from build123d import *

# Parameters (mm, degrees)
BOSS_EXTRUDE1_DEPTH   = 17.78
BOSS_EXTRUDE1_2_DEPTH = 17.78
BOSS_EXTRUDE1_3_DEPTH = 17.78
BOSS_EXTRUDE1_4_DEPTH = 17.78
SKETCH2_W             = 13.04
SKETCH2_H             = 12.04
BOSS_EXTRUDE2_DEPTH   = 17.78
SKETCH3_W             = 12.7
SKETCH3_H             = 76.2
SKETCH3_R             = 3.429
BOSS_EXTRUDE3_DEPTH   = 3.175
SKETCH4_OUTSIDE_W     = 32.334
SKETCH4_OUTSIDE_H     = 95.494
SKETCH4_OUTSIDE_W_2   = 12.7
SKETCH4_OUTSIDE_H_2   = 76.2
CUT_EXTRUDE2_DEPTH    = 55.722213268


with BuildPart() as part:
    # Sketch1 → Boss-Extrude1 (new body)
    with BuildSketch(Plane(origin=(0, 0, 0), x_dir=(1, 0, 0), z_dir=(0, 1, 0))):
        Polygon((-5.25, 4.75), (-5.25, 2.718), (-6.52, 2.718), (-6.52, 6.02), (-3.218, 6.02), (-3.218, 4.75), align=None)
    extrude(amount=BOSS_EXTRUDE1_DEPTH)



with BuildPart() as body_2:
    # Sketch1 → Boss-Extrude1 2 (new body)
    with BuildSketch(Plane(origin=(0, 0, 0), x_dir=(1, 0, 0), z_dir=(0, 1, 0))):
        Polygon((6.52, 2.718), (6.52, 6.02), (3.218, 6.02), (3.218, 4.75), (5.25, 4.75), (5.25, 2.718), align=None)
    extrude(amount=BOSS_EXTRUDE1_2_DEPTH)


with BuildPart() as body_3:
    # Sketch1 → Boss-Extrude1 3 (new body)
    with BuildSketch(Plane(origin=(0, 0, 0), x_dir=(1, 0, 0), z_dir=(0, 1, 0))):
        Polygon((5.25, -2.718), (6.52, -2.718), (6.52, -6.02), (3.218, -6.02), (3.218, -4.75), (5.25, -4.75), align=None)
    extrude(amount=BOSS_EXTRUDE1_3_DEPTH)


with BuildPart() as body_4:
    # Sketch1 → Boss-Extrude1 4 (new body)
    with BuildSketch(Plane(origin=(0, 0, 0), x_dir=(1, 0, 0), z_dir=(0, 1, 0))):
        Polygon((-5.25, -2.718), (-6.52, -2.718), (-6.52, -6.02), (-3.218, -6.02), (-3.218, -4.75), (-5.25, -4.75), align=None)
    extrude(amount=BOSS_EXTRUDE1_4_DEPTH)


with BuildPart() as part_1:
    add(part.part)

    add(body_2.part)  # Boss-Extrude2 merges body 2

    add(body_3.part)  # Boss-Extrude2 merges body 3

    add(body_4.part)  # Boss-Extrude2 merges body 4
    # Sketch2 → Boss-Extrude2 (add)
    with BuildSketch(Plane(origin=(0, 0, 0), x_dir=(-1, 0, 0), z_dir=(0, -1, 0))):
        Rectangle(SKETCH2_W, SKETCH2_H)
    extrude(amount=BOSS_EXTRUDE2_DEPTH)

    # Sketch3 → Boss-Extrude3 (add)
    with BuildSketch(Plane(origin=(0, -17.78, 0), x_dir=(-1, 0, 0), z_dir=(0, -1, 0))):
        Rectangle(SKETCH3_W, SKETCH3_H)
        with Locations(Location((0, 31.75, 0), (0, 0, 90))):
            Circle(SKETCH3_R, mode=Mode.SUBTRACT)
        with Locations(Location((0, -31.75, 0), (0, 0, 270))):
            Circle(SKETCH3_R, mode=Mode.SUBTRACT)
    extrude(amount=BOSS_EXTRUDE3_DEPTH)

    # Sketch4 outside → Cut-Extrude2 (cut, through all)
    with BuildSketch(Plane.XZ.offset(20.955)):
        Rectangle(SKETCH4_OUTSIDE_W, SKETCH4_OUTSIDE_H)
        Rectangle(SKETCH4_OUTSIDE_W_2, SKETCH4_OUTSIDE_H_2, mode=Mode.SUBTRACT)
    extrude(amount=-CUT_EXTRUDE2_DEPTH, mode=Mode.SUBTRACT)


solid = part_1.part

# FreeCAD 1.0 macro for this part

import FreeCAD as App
import Part
import Sketcher
Q = App.Units.Quantity

doc = App.newDocument("Part")
body = doc.addObject("PartDesign::Body", "Body")

# Sketch on XZ plane
sketch1 = doc.addObject("Sketcher::SketchObject", "Sketch")
body.addObject(sketch1)
sketch1.AttachmentSupport = (doc.XZ_Plane, [""])
sketch1.MapMode = "FlatFace"
sketch1.addGeometry(Part.LineSegment(App.Vector(-5.2, -2.7, 0), App.Vector(-5.2, -4.8, 0)), False)
sketch1.addGeometry(Part.LineSegment(App.Vector(-5.2, -4.8, 0), App.Vector(-3.2, -4.8, 0)), False)
sketch1.addGeometry(Part.LineSegment(App.Vector(-3.2, -4.8, 0), App.Vector(-3.2, -6, 0)), False)
sketch1.addGeometry(Part.LineSegment(App.Vector(-3.2, -6, 0), App.Vector(-6.5, -6, 0)), False)
sketch1.addGeometry(Part.LineSegment(App.Vector(-6.5, -6, 0), App.Vector(-6.5, -2.7, 0)), False)
sketch1.addGeometry(Part.LineSegment(App.Vector(-6.5, -2.7, 0), App.Vector(-5.2, -2.7, 0)), False)
sketch1.addConstraint(Sketcher.Constraint("Coincident", 0, 2, 1, 1))
sketch1.addConstraint(Sketcher.Constraint("Coincident", 1, 2, 2, 1))
sketch1.addConstraint(Sketcher.Constraint("Coincident", 2, 2, 3, 1))
sketch1.addConstraint(Sketcher.Constraint("Coincident", 3, 2, 4, 1))
sketch1.addConstraint(Sketcher.Constraint("Coincident", 4, 2, 5, 1))
sketch1.addConstraint(Sketcher.Constraint("Coincident", 5, 2, 0, 1))
sketch1.addConstraint(Sketcher.Constraint("Vertical", 0))
sketch1.addConstraint(Sketcher.Constraint("Horizontal", 1))
sketch1.addConstraint(Sketcher.Constraint("Vertical", 2))
sketch1.addConstraint(Sketcher.Constraint("Horizontal", 3))
sketch1.addConstraint(Sketcher.Constraint("Vertical", 4))
sketch1.addConstraint(Sketcher.Constraint("Horizontal", 5))
sketch1.addConstraint(Sketcher.Constraint("Equal", 1, 0))
sketch1.addConstraint(Sketcher.Constraint("Equal", 5, 2))
sketch1.addConstraint(Sketcher.Constraint("DistanceX", 1, 1, 1, 2, Q("0.08 in")))
sketch1.addConstraint(Sketcher.Constraint("DistanceX", 3, 2, 3, 1, Q("0.13 in")))
sketch1.addConstraint(Sketcher.Constraint("DistanceX", 0, 2, -1, 1, Q("5.25 mm")))
sketch1.addConstraint(Sketcher.Constraint("DistanceY", 0, 2, -1, 1, Q("4.75 mm")))
pad1 = doc.addObject("PartDesign::Pad", "Pad")
body.addObject(pad1)
pad1.Profile = sketch1
pad1.Length = Q("0.7 in")
pad1.Reversed = True
body2 = doc.addObject("PartDesign::Body", "Body001")

# Sketch on XZ plane
sketch2 = doc.addObject("Sketcher::SketchObject", "Sketch001")
body2.addObject(sketch2)
sketch2.AttachmentSupport = (doc.getObject("XZ_Plane001"), [""])
sketch2.MapMode = "FlatFace"
sketch2.addGeometry(Part.LineSegment(App.Vector(6.5, -2.7, 0), App.Vector(6.5, -6, 0)), False)
sketch2.addGeometry(Part.LineSegment(App.Vector(6.5, -6, 0), App.Vector(3.2, -6, 0)), False)
sketch2.addGeometry(Part.LineSegment(App.Vector(3.2, -6, 0), App.Vector(3.2, -4.8, 0)), False)
sketch2.addGeometry(Part.LineSegment(App.Vector(3.2, -4.8, 0), App.Vector(5.2, -4.8, 0)), False)
sketch2.addGeometry(Part.LineSegment(App.Vector(5.2, -4.8, 0), App.Vector(5.2, -2.7, 0)), False)
sketch2.addGeometry(Part.LineSegment(App.Vector(5.2, -2.7, 0), App.Vector(6.5, -2.7, 0)), False)
sketch2.addConstraint(Sketcher.Constraint("Coincident", 0, 2, 1, 1))
sketch2.addConstraint(Sketcher.Constraint("Coincident", 1, 2, 2, 1))
sketch2.addConstraint(Sketcher.Constraint("Coincident", 2, 2, 3, 1))
sketch2.addConstraint(Sketcher.Constraint("Coincident", 3, 2, 4, 1))
sketch2.addConstraint(Sketcher.Constraint("Coincident", 4, 2, 5, 1))
sketch2.addConstraint(Sketcher.Constraint("Coincident", 5, 2, 0, 1))
sketch2.addConstraint(Sketcher.Constraint("Vertical", 0))
sketch2.addConstraint(Sketcher.Constraint("Horizontal", 1))
sketch2.addConstraint(Sketcher.Constraint("Vertical", 2))
sketch2.addConstraint(Sketcher.Constraint("Horizontal", 3))
sketch2.addConstraint(Sketcher.Constraint("Vertical", 4))
sketch2.addConstraint(Sketcher.Constraint("Horizontal", 5))
sketch2.addConstraint(Sketcher.Constraint("Equal", 1, 0))
sketch2.addConstraint(Sketcher.Constraint("Equal", 5, 2))
sketch2.addConstraint(Sketcher.Constraint("DistanceX", 1, 2, 1, 1, Q("0.13 in")))
sketch2.addConstraint(Sketcher.Constraint("DistanceX", 3, 1, 3, 2, Q("0.08 in")))
sketch2.addConstraint(Sketcher.Constraint("DistanceX", -1, 1, 0, 2, Q("6.52 mm")))
sketch2.addConstraint(Sketcher.Constraint("DistanceY", 0, 2, -1, 1, Q("6.02 mm")))
pad2 = doc.addObject("PartDesign::Pad", "Pad001")
body2.addObject(pad2)
pad2.Profile = sketch2
pad2.Length = Q("0.7 in")
pad2.Reversed = True
body3 = doc.addObject("PartDesign::Body", "Body002")

# Sketch on XZ plane
sketch3 = doc.addObject("Sketcher::SketchObject", "Sketch002")
body3.addObject(sketch3)
sketch3.AttachmentSupport = (doc.getObject("XZ_Plane002"), [""])
sketch3.MapMode = "FlatFace"
sketch3.addGeometry(Part.LineSegment(App.Vector(6.5, 2.7, 0), App.Vector(5.2, 2.7, 0)), False)
sketch3.addGeometry(Part.LineSegment(App.Vector(5.2, 2.7, 0), App.Vector(5.2, 4.8, 0)), False)
sketch3.addGeometry(Part.LineSegment(App.Vector(5.2, 4.8, 0), App.Vector(3.2, 4.8, 0)), False)
sketch3.addGeometry(Part.LineSegment(App.Vector(3.2, 4.8, 0), App.Vector(3.2, 6, 0)), False)
sketch3.addGeometry(Part.LineSegment(App.Vector(3.2, 6, 0), App.Vector(6.5, 6, 0)), False)
sketch3.addGeometry(Part.LineSegment(App.Vector(6.5, 6, 0), App.Vector(6.5, 2.7, 0)), False)
sketch3.addConstraint(Sketcher.Constraint("Coincident", 0, 2, 1, 1))
sketch3.addConstraint(Sketcher.Constraint("Coincident", 1, 2, 2, 1))
sketch3.addConstraint(Sketcher.Constraint("Coincident", 2, 2, 3, 1))
sketch3.addConstraint(Sketcher.Constraint("Coincident", 3, 2, 4, 1))
sketch3.addConstraint(Sketcher.Constraint("Coincident", 4, 2, 5, 1))
sketch3.addConstraint(Sketcher.Constraint("Coincident", 5, 2, 0, 1))
sketch3.addConstraint(Sketcher.Constraint("Horizontal", 0))
sketch3.addConstraint(Sketcher.Constraint("Vertical", 1))
sketch3.addConstraint(Sketcher.Constraint("Horizontal", 2))
sketch3.addConstraint(Sketcher.Constraint("Vertical", 3))
sketch3.addConstraint(Sketcher.Constraint("Horizontal", 4))
sketch3.addConstraint(Sketcher.Constraint("Vertical", 5))
sketch3.addConstraint(Sketcher.Constraint("Equal", 2, 1))
sketch3.addConstraint(Sketcher.Constraint("Equal", 0, 3))
sketch3.addConstraint(Sketcher.Constraint("DistanceX", 0, 2, 0, 1, Q("0.05 in")))
sketch3.addConstraint(Sketcher.Constraint("DistanceX", 2, 2, 2, 1, Q("0.08 in")))
sketch3.addConstraint(Sketcher.Constraint("DistanceX", -1, 1, 0, 2, Q("5.25 mm")))
sketch3.addConstraint(Sketcher.Constraint("DistanceY", -1, 1, 0, 2, Q("2.718 mm")))
pad3 = doc.addObject("PartDesign::Pad", "Pad002")
body3.addObject(pad3)
pad3.Profile = sketch3
pad3.Length = Q("0.7 in")
pad3.Reversed = True
body4 = doc.addObject("PartDesign::Body", "Body003")

# Sketch on XZ plane
sketch4 = doc.addObject("Sketcher::SketchObject", "Sketch003")
body4.addObject(sketch4)
sketch4.AttachmentSupport = (doc.getObject("XZ_Plane003"), [""])
sketch4.MapMode = "FlatFace"
sketch4.addGeometry(Part.LineSegment(App.Vector(-5.2, 2.7, 0), App.Vector(-6.5, 2.7, 0)), False)
sketch4.addGeometry(Part.LineSegment(App.Vector(-6.5, 2.7, 0), App.Vector(-6.5, 6, 0)), False)
sketch4.addGeometry(Part.LineSegment(App.Vector(-6.5, 6, 0), App.Vector(-3.2, 6, 0)), False)
sketch4.addGeometry(Part.LineSegment(App.Vector(-3.2, 6, 0), App.Vector(-3.2, 4.8, 0)), False)
sketch4.addGeometry(Part.LineSegment(App.Vector(-3.2, 4.8, 0), App.Vector(-5.2, 4.8, 0)), False)
sketch4.addGeometry(Part.LineSegment(App.Vector(-5.2, 4.8, 0), App.Vector(-5.2, 2.7, 0)), False)
sketch4.addConstraint(Sketcher.Constraint("Coincident", 0, 2, 1, 1))
sketch4.addConstraint(Sketcher.Constraint("Coincident", 1, 2, 2, 1))
sketch4.addConstraint(Sketcher.Constraint("Coincident", 2, 2, 3, 1))
sketch4.addConstraint(Sketcher.Constraint("Coincident", 3, 2, 4, 1))
sketch4.addConstraint(Sketcher.Constraint("Coincident", 4, 2, 5, 1))
sketch4.addConstraint(Sketcher.Constraint("Coincident", 5, 2, 0, 1))
sketch4.addConstraint(Sketcher.Constraint("Horizontal", 0))
sketch4.addConstraint(Sketcher.Constraint("Vertical", 1))
sketch4.addConstraint(Sketcher.Constraint("Horizontal", 2))
sketch4.addConstraint(Sketcher.Constraint("Vertical", 3))
sketch4.addConstraint(Sketcher.Constraint("Horizontal", 4))
sketch4.addConstraint(Sketcher.Constraint("Vertical", 5))
sketch4.addConstraint(Sketcher.Constraint("Equal", 2, 1))
sketch4.addConstraint(Sketcher.Constraint("Equal", 0, 3))
sketch4.addConstraint(Sketcher.Constraint("DistanceX", 0, 2, 0, 1, Q("0.05 in")))
sketch4.addConstraint(Sketcher.Constraint("DistanceX", 2, 1, 2, 2, Q("0.13 in")))
sketch4.addConstraint(Sketcher.Constraint("DistanceX", 0, 2, -1, 1, Q("6.52 mm")))
sketch4.addConstraint(Sketcher.Constraint("DistanceY", -1, 1, 0, 2, Q("2.718 mm")))
pad4 = doc.addObject("PartDesign::Pad", "Pad003")
body4.addObject(pad4)
pad4.Profile = sketch4
pad4.Length = Q("0.7 in")
pad4.Reversed = True
body.AllowCompound = True
doc.recompute()

boolean = doc.addObject("PartDesign::Boolean", "Boolean")
body.addObject(boolean)
boolean.Type = "Fuse"
boolean.addObjects([body2])
doc.recompute()

boolean2 = doc.addObject("PartDesign::Boolean", "Boolean001")
body.addObject(boolean2)
boolean2.Type = "Fuse"
boolean2.addObjects([body3])
doc.recompute()

boolean3 = doc.addObject("PartDesign::Boolean", "Boolean002")
body.addObject(boolean3)
boolean3.Type = "Fuse"
boolean3.addObjects([body4])

# Sketch on XZ plane
sketch5 = doc.addObject("Sketcher::SketchObject", "Sketch004")
body.addObject(sketch5)
sketch5.AttachmentSupport = (doc.XZ_Plane, [""])
sketch5.MapMode = "FlatFace"
sketch5.addGeometry(Part.LineSegment(App.Vector(7, -6, 0), App.Vector(7, 6, 0)), False)
sketch5.addGeometry(Part.LineSegment(App.Vector(7, 6, 0), App.Vector(-7, 6, 0)), False)
sketch5.addGeometry(Part.LineSegment(App.Vector(-7, 6, 0), App.Vector(-7, -6, 0)), False)
sketch5.addGeometry(Part.LineSegment(App.Vector(-7, -6, 0), App.Vector(7, -6, 0)), False)
sketch5.addConstraint(Sketcher.Constraint("Coincident", 0, 2, 1, 1))
sketch5.addConstraint(Sketcher.Constraint("Coincident", 1, 2, 2, 1))
sketch5.addConstraint(Sketcher.Constraint("Coincident", 2, 2, 3, 1))
sketch5.addConstraint(Sketcher.Constraint("Coincident", 3, 2, 0, 1))
sketch5.addConstraint(Sketcher.Constraint("Vertical", 0))
sketch5.addConstraint(Sketcher.Constraint("Horizontal", 1))
sketch5.addConstraint(Sketcher.Constraint("Vertical", 2))
sketch5.addConstraint(Sketcher.Constraint("Horizontal", 3))
sketch5.addConstraint(Sketcher.Constraint("Symmetric", 0, 2, 2, 2, -1, 1))
sketch5.addConstraint(Sketcher.Constraint("DistanceX", 1, 2, 1, 1, Q("13.04 mm")))
sketch5.addConstraint(Sketcher.Constraint("DistanceY", 0, 1, 0, 2, Q("12.04 mm")))
pad5 = doc.addObject("PartDesign::Pad", "Pad004")
body.addObject(pad5)
pad5.Profile = sketch5
pad5.Length = Q("0.7 in")

# Sketch on XZ plane
sketch6 = doc.addObject("Sketcher::SketchObject", "Sketch005")
body.addObject(sketch6)
sketch6.AttachmentSupport = (doc.XZ_Plane, [""])
sketch6.MapMode = "FlatFace"
sketch6.AttachmentOffset = App.Placement(App.Vector(0, 0, 0.7 * 25.4), App.Rotation())
sketch6.addGeometry(Part.LineSegment(App.Vector(6.3, -38.1, 0), App.Vector(6.3, 38.1, 0)), False)
sketch6.addGeometry(Part.LineSegment(App.Vector(6.3, 38.1, 0), App.Vector(-6.3, 38.1, 0)), False)
sketch6.addGeometry(Part.LineSegment(App.Vector(-6.3, 38.1, 0), App.Vector(-6.3, -38.1, 0)), False)
sketch6.addGeometry(Part.LineSegment(App.Vector(-6.3, -38.1, 0), App.Vector(6.3, -38.1, 0)), False)
sketch6.addGeometry(Part.Circle(App.Vector(0, 31.8, 0), App.Vector(0, 0, 1), 3.4), False)
sketch6.addGeometry(Part.Circle(App.Vector(0, -31.8, 0), App.Vector(0, 0, 1), 3.4), False)
sketch6.addConstraint(Sketcher.Constraint("Coincident", 0, 2, 1, 1))
sketch6.addConstraint(Sketcher.Constraint("Coincident", 1, 2, 2, 1))
sketch6.addConstraint(Sketcher.Constraint("Coincident", 2, 2, 3, 1))
sketch6.addConstraint(Sketcher.Constraint("Coincident", 3, 2, 0, 1))
sketch6.addConstraint(Sketcher.Constraint("Vertical", 0))
sketch6.addConstraint(Sketcher.Constraint("Horizontal", 1))
sketch6.addConstraint(Sketcher.Constraint("Vertical", 2))
sketch6.addConstraint(Sketcher.Constraint("Horizontal", 3))
sketch6.addConstraint(Sketcher.Constraint("Equal", 4, 5))
sketch6.addConstraint(Sketcher.Constraint("Symmetric", 4, 3, 5, 3, -1, 1))
sketch6.addConstraint(Sketcher.Constraint("Symmetric", 0, 2, 2, 2, -1, 1))
sketch6.addConstraint(Sketcher.Constraint("PointOnObject", 4, 3, -2))
sketch6.addConstraint(Sketcher.Constraint("Diameter", 4, Q("0.27 in")))
sketch6.addConstraint(Sketcher.Constraint("DistanceY", 0, 1, 0, 2, Q("3 in")))
sketch6.addConstraint(Sketcher.Constraint("DistanceX", 1, 2, 1, 1, Q("0.5 in")))
sketch6.addConstraint(Sketcher.Constraint("DistanceY", 5, 3, 4, 3, Q("2.5 in")))
pad6 = doc.addObject("PartDesign::Pad", "Pad005")
body.addObject(pad6)
pad6.Profile = sketch6
pad6.Length = Q("0.125 in")

# Sketch on XZ plane
sketch7 = doc.addObject("Sketcher::SketchObject", "Sketch006")
body.addObject(sketch7)
sketch7.AttachmentSupport = (doc.XZ_Plane, [""])
sketch7.MapMode = "FlatFace"
sketch7.AttachmentOffset = App.Placement(App.Vector(0, 0, 0.825 * 25.4), App.Rotation())
sketch7.addGeometry(Part.LineSegment(App.Vector(-16, 48, 0), App.Vector(-16, -48, 0)), False)
sketch7.addGeometry(Part.LineSegment(App.Vector(-16, -48, 0), App.Vector(16, -48, 0)), False)
sketch7.addGeometry(Part.LineSegment(App.Vector(16, -48, 0), App.Vector(16, 48, 0)), False)
sketch7.addGeometry(Part.LineSegment(App.Vector(16, 48, 0), App.Vector(-16, 48, 0)), False)
sketch7.addGeometry(Part.LineSegment(App.Vector(6, -38, 0), App.Vector(-6, -38, 0)), False)
sketch7.addGeometry(Part.LineSegment(App.Vector(-6, -38, 0), App.Vector(-6, 38, 0)), False)
sketch7.addGeometry(Part.LineSegment(App.Vector(-6, 38, 0), App.Vector(6, 38, 0)), False)
sketch7.addGeometry(Part.LineSegment(App.Vector(6, 38, 0), App.Vector(6, -38, 0)), False)
sketch7.addConstraint(Sketcher.Constraint("Coincident", 0, 2, 1, 1))
sketch7.addConstraint(Sketcher.Constraint("Coincident", 1, 2, 2, 1))
sketch7.addConstraint(Sketcher.Constraint("Coincident", 2, 2, 3, 1))
sketch7.addConstraint(Sketcher.Constraint("Coincident", 3, 2, 0, 1))
sketch7.addConstraint(Sketcher.Constraint("Coincident", 4, 2, 5, 1))
sketch7.addConstraint(Sketcher.Constraint("Coincident", 5, 2, 6, 1))
sketch7.addConstraint(Sketcher.Constraint("Coincident", 6, 2, 7, 1))
sketch7.addConstraint(Sketcher.Constraint("Coincident", 7, 2, 4, 1))
sketch7.addConstraint(Sketcher.Constraint("Vertical", 0))
sketch7.addConstraint(Sketcher.Constraint("Horizontal", 1))
sketch7.addConstraint(Sketcher.Constraint("Vertical", 2))
sketch7.addConstraint(Sketcher.Constraint("Horizontal", 3))
sketch7.addConstraint(Sketcher.Constraint("Horizontal", 4))
sketch7.addConstraint(Sketcher.Constraint("Vertical", 5))
sketch7.addConstraint(Sketcher.Constraint("Horizontal", 6))
sketch7.addConstraint(Sketcher.Constraint("Vertical", 7))
sketch7.addConstraint(Sketcher.Constraint("Symmetric", 0, 2, 2, 2, -1, 1))
sketch7.addConstraint(Sketcher.Constraint("Symmetric", 4, 2, 6, 2, -1, 1))
sketch7.addConstraint(Sketcher.Constraint("DistanceY", 5, 1, 5, 2, Q("3 in")))
sketch7.addConstraint(Sketcher.Constraint("DistanceX", 4, 2, 4, 1, Q("0.5 in")))
sketch7.addConstraint(Sketcher.Constraint("DistanceX", 1, 1, 1, 2, Q("32.334 mm")))
sketch7.addConstraint(Sketcher.Constraint("DistanceY", 0, 2, 0, 1, Q("95.494 mm")))
pocket1 = doc.addObject("PartDesign::Pocket", "Pocket")
body.addObject(pocket1)
pocket1.Profile = sketch7
pocket1.Type = "ThroughAll"

doc.recompute()
